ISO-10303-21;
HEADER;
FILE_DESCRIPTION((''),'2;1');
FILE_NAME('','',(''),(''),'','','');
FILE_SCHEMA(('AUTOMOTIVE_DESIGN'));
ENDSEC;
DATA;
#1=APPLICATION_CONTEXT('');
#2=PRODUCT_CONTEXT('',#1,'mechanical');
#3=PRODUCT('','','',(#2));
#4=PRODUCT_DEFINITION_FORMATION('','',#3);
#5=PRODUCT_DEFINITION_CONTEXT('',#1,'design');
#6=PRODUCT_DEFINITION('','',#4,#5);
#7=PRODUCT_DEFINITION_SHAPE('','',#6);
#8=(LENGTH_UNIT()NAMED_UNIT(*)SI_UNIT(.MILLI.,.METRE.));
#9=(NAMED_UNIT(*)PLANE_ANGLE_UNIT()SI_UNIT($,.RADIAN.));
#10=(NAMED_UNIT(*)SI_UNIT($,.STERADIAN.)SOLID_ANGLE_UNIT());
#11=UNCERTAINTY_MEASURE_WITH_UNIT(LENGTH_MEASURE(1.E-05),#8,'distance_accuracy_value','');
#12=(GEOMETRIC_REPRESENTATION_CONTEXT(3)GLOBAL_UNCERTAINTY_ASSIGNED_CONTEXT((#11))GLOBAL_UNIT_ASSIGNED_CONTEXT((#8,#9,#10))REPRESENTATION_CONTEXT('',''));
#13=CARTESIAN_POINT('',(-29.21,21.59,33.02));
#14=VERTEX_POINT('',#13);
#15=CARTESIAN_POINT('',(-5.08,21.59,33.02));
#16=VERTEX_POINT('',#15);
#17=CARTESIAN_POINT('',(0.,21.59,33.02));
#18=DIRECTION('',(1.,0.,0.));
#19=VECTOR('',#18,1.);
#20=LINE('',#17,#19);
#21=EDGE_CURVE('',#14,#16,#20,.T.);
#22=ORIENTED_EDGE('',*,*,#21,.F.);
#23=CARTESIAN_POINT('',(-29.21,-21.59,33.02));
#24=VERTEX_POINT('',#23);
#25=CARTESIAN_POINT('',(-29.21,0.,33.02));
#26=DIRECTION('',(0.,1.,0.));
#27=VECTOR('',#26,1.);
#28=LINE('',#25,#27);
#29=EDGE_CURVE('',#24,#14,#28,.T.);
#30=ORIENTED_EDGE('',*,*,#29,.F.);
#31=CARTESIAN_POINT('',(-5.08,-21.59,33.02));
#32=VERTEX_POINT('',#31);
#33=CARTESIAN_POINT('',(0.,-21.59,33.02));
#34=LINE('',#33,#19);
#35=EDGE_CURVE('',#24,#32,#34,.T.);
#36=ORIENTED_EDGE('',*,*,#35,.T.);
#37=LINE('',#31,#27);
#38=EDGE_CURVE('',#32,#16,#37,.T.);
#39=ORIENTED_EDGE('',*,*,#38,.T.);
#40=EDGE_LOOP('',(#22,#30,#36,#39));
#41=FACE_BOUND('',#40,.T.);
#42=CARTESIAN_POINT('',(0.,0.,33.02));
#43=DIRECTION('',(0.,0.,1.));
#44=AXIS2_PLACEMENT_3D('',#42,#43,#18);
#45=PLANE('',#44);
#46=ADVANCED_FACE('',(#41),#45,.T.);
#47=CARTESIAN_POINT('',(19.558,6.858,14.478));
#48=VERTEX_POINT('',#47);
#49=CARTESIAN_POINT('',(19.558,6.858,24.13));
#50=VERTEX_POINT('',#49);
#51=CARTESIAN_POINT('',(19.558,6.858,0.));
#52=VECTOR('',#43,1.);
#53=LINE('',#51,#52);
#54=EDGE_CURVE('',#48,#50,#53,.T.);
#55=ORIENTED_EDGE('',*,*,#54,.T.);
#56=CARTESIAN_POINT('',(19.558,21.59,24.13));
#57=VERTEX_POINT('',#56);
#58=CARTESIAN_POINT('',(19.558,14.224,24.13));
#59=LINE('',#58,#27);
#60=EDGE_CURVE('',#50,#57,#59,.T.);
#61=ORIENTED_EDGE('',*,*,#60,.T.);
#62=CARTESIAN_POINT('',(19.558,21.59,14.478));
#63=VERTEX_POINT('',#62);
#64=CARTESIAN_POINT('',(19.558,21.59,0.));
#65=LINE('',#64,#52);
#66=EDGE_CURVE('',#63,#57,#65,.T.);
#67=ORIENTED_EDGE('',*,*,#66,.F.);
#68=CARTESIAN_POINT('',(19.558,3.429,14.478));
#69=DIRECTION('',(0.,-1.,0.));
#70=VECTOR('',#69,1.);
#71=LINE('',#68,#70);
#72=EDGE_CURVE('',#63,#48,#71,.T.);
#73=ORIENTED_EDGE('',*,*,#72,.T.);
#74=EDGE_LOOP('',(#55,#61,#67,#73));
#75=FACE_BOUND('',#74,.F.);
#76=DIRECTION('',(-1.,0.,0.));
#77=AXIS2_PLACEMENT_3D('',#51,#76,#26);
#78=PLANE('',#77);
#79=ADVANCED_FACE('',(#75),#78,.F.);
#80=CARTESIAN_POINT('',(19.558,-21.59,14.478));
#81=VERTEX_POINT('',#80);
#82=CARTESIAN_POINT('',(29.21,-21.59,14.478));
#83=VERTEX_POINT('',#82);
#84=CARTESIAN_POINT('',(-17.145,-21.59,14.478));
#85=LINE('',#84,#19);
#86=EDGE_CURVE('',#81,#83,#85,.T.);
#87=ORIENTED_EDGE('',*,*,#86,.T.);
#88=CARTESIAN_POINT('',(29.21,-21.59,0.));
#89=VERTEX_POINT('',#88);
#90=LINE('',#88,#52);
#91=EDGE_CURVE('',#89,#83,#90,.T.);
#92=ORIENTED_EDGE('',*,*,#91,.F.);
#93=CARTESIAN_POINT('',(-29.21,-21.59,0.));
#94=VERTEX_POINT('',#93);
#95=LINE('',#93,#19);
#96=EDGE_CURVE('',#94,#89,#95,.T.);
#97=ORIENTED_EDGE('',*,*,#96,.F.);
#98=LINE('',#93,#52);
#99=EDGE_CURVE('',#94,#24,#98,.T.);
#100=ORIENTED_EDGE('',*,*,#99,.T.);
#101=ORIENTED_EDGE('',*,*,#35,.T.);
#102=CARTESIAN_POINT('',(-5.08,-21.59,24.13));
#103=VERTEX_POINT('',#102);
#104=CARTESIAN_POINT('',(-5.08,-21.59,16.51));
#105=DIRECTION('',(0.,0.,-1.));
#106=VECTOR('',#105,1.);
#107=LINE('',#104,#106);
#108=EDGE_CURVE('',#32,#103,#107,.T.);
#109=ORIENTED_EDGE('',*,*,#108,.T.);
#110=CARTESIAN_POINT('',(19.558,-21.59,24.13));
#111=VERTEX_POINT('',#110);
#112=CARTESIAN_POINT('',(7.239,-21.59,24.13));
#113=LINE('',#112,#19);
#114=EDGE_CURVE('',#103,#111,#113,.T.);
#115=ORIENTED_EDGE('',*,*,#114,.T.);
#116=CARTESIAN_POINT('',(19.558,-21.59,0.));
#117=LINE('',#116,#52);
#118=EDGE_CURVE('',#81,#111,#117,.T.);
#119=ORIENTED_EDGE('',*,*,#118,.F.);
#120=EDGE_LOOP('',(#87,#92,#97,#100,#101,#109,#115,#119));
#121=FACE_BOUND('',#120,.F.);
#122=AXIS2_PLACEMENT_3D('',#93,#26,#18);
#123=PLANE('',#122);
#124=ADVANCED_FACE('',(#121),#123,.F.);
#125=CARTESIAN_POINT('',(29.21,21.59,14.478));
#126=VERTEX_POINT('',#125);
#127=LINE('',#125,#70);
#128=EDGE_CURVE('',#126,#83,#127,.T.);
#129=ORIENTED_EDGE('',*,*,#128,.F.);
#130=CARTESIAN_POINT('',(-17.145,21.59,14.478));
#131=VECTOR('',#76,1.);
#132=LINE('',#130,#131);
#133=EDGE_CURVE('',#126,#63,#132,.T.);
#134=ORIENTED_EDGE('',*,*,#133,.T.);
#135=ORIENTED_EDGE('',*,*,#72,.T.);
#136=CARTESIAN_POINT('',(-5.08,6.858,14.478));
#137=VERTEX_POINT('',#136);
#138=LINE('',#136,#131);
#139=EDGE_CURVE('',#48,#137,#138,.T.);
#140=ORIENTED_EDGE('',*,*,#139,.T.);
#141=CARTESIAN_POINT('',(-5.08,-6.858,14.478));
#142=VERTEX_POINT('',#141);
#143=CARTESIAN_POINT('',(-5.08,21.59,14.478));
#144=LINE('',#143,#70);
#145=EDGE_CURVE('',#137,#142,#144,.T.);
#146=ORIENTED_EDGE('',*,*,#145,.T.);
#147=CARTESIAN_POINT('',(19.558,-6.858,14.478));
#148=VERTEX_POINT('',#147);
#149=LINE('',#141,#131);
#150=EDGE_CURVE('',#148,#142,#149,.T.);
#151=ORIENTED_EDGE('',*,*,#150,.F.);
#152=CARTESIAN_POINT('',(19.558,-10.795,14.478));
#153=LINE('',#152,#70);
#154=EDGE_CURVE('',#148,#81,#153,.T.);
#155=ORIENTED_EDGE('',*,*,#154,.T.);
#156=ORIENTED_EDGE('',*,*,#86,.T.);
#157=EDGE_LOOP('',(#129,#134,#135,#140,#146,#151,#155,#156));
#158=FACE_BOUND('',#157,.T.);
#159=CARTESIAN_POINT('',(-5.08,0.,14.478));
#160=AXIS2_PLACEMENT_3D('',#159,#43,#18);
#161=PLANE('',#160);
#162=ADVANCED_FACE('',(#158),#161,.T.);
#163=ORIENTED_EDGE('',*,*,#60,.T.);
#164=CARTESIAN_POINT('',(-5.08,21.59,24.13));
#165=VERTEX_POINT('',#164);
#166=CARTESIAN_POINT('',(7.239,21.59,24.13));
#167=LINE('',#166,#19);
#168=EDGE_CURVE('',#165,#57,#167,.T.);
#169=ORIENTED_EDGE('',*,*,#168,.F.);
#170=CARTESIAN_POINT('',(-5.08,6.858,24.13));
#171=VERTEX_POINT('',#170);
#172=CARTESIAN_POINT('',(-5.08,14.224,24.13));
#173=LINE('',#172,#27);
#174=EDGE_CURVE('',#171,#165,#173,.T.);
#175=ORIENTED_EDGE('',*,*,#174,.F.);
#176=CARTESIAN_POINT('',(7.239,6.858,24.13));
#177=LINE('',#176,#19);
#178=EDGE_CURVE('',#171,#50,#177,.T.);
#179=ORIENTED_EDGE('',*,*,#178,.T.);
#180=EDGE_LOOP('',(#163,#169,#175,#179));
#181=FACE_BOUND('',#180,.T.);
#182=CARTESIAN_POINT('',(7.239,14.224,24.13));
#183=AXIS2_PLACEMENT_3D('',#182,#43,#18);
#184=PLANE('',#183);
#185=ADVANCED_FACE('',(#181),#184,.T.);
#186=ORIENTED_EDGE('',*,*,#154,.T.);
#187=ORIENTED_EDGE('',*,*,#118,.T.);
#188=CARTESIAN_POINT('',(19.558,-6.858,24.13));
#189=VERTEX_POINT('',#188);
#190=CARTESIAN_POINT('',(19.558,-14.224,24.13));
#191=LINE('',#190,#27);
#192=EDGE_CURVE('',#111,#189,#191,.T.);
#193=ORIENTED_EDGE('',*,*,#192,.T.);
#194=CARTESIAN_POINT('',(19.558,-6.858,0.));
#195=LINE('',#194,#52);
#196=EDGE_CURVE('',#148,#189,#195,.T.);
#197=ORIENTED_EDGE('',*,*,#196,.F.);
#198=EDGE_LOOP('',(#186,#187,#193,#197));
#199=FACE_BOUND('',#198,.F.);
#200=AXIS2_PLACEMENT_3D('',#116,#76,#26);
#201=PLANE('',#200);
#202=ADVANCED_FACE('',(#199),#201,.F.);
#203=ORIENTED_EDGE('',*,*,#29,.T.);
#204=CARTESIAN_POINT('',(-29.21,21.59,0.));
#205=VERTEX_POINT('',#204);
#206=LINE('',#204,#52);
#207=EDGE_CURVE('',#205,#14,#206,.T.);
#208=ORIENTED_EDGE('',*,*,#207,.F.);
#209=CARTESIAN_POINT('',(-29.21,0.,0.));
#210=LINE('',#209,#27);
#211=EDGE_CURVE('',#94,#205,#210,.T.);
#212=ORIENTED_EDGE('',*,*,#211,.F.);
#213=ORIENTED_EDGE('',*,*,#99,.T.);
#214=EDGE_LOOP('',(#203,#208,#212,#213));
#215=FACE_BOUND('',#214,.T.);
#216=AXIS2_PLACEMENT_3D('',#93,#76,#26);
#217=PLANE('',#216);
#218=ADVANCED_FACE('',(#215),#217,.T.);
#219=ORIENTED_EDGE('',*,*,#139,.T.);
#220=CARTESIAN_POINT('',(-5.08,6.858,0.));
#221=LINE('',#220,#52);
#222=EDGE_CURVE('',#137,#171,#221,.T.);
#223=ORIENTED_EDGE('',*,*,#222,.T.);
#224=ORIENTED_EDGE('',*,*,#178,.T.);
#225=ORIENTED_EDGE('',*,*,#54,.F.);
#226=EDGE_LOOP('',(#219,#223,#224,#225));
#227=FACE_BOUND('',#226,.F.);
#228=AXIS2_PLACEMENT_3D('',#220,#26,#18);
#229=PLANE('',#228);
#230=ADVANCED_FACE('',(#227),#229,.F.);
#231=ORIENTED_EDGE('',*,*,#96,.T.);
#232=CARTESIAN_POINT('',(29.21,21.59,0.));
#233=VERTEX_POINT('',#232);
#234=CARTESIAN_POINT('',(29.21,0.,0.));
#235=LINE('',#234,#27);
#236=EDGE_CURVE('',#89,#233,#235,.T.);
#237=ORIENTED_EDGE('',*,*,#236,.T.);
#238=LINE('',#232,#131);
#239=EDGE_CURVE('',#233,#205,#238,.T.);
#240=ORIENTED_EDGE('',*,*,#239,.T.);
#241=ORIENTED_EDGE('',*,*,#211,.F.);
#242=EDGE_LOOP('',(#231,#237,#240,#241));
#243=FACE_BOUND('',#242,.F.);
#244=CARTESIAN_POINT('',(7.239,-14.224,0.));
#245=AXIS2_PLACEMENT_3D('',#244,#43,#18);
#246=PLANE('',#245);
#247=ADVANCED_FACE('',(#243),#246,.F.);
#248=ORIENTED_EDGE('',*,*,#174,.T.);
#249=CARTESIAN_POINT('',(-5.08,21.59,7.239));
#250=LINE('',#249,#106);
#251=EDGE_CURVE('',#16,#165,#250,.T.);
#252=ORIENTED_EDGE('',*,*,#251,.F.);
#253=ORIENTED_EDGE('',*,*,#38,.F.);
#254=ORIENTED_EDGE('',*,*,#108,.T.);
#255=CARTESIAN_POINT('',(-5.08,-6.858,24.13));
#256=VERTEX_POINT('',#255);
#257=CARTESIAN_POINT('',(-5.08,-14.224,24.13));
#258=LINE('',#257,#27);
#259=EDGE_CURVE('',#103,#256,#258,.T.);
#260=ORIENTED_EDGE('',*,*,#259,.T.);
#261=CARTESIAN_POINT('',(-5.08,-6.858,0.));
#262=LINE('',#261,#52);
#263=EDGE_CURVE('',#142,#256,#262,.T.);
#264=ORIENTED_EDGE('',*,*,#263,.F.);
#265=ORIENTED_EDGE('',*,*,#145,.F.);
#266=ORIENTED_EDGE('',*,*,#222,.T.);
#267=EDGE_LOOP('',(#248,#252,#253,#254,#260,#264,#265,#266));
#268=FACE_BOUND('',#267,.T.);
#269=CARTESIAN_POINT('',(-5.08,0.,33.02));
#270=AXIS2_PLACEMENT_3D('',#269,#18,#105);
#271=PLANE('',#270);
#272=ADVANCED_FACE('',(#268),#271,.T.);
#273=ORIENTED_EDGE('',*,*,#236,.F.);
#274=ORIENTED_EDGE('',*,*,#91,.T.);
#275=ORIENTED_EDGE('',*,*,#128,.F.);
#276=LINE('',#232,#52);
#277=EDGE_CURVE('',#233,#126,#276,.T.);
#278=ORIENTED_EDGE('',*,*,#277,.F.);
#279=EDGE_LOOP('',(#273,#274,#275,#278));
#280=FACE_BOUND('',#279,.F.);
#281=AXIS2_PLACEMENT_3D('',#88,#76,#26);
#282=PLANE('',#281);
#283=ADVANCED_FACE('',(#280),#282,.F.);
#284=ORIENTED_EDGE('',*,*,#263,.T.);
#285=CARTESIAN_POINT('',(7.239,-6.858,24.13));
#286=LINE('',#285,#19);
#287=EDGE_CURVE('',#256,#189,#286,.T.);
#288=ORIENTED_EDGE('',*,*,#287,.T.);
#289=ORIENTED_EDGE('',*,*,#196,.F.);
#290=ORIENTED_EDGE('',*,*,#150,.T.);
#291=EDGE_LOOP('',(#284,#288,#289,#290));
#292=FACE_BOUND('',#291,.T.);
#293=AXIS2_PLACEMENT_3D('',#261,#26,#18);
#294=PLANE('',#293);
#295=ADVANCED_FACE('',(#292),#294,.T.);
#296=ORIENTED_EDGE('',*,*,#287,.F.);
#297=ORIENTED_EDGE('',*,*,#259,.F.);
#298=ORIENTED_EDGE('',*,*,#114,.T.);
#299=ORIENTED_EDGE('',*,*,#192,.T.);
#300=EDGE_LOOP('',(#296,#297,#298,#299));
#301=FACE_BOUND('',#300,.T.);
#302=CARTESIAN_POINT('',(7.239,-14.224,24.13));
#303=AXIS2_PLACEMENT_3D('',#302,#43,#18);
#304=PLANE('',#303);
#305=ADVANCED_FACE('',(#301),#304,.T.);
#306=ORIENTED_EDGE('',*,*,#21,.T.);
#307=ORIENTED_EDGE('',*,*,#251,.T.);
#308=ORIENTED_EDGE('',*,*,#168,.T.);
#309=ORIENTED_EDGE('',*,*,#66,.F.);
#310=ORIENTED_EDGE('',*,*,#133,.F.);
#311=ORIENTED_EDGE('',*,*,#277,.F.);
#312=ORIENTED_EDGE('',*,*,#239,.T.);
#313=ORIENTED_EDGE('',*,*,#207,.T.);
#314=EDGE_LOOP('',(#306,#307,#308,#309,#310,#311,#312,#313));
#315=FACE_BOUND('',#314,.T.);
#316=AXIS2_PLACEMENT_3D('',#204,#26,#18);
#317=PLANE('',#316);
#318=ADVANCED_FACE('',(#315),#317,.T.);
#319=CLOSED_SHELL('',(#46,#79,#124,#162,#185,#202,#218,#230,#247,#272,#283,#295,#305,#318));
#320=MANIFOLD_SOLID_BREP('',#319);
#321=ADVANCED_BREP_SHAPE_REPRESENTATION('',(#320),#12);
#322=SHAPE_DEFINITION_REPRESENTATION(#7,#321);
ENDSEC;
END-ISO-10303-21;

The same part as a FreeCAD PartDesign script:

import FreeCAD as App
import Part
import Sketcher

V = App.Vector
Q = App.Units.Quantity

doc = App.newDocument("Part")
params = doc.addObject("Spreadsheet::Sheet", "Params")
for row, (alias, value) in enumerate([
    ("sketch1_width", "2.3 in"),
    ("sketch1_height", "1.7 in"),
    ("pad1_length", "1.3 in"),
    ("sketch2_height", "0.73 in"),
    ("sketch3_width", "1.35 in"),
    ("sketch3_height", "0.73 in"),
    ("sketch4_width", "0.97 in"),
    ("sketch4_height", "0.58 in"),
    ("pad2_length", "0.95 in"),
    ("sketch5_width", "0.97 in"),
    ("sketch5_height", "0.58 in"),
    ("pad3_length", "0.95 in"),
], start=1):
    params.set(f"A{row}", alias)
    params.set(f"B{row}", "=" + value)
    params.setAlias(f"B{row}", alias)

body = doc.addObject("PartDesign::Body", "Body")

# Sketch on XY plane
sketch1 = body.newObject("Sketcher::SketchObject", "Sketch")
sketch1.AttachmentSupport = (doc.getObject("XY_Plane"), [""])
sketch1.MapMode = "FlatFace"
sketch1.addGeometry([
    Part.LineSegment(V(-29.21, 21.59, 0), V(-29.21, -21.59, 0)),
    Part.LineSegment(V(-29.21, -21.59, 0), V(29.21, -21.59, 0)),
    Part.LineSegment(V(29.21, -21.59, 0), V(29.21, 21.59, 0)),
    Part.LineSegment(V(29.21, 21.59, 0), V(-29.21, 21.59, 0)),
], False)
sketch1.addConstraint([
    Sketcher.Constraint("Coincident", 0, 2, 1, 1),
    Sketcher.Constraint("Coincident", 1, 2, 2, 1),
    Sketcher.Constraint("Coincident", 2, 2, 3, 1),
    Sketcher.Constraint("Coincident", 3, 2, 0, 1),
    Sketcher.Constraint("Vertical", 0),
    Sketcher.Constraint("Horizontal", 1),
    Sketcher.Constraint("Vertical", 2),
    Sketcher.Constraint("Horizontal", 3),
    Sketcher.Constraint("Symmetric", 0, 2, 2, 2, -1, 1),
    Sketcher.Constraint("DistanceX", 1, 1, 1, 2, Q("2.3 in")),
    Sketcher.Constraint("DistanceY", 0, 2, 0, 1, Q("1.7 in")),
])
sketch1.setExpression("Constraints[9]", "Params.sketch1_width")
sketch1.setExpression("Constraints[10]", "Params.sketch1_height")
pad1 = body.newObject("PartDesign::Pad", "Pad")
pad1.Profile = sketch1
pad1.setExpression("Length", "Params.pad1_length")

# Sketch on XZ plane
sketch2 = body.newObject("Sketcher::SketchObject", "Sketch001")
sketch2.AttachmentSupport = (doc.getObject("XZ_Plane"), [""])
sketch2.MapMode = "FlatFace"
sketch2.addGeometry([
    Part.LineSegment(V(-5.08, 33.02, 0), V(-5.08, 14.478, 0)),
    Part.LineSegment(V(-5.08, 14.478, 0), V(39.869538, 14.478, 0)),
    Part.LineSegment(V(39.869538, 14.478, 0), V(39.869538, 33.02, 0)),
    Part.LineSegment(V(39.869538, 33.02, 0), V(-5.08, 33.02, 0)),
], False)
sketch2.addConstraint([
    Sketcher.Constraint("Coincident", 0, 2, 1, 1),
    Sketcher.Constraint("Coincident", 1, 2, 2, 1),
    Sketcher.Constraint("Coincident", 2, 2, 3, 1),
    Sketcher.Constraint("Coincident", 3, 2, 0, 1),
    Sketcher.Constraint("Vertical", 0),
    Sketcher.Constraint("Horizontal", 1),
    Sketcher.Constraint("Vertical", 2),
    Sketcher.Constraint("Horizontal", 3),
    Sketcher.Constraint("DistanceY", 0, 2, 0, 1, Q("0.73 in")),
    Sketcher.Constraint("DistanceX", 0, 2, -1, 1, Q("0.2 in")),
    Sketcher.Constraint("DistanceY", -1, 1, 2, 2, Q("1.3 in")),
    Sketcher.Constraint("DistanceX", 1, 1, 1, 2, Q("44.949538 mm")),
])
sketch2.setExpression("Constraints[8]", "Params.sketch2_height")
pocket1 = body.newObject("PartDesign::Pocket", "Pocket")
pocket1.Profile = sketch2
pocket1.Type = "ThroughAll"

# Sketch on XZ plane
sketch3 = body.newObject("Sketcher::SketchObject", "Sketch002")
sketch3.AttachmentSupport = (doc.getObject("XZ_Plane"), [""])
sketch3.MapMode = "FlatFace"
sketch3.addGeometry([
    Part.LineSegment(V(-5.08, 14.478, 0), V(-5.08, 33.02, 0)),
    Part.LineSegment(V(-5.08, 33.02, 0), V(29.21, 33.02, 0)),
    Part.LineSegment(V(29.21, 33.02, 0), V(29.21, 14.478, 0)),
    Part.LineSegment(V(29.21, 14.478, 0), V(-5.08, 14.478, 0)),
], False)
sketch3.addConstraint([
    Sketcher.Constraint("Coincident", 0, 2, 1, 1),
    Sketcher.Constraint("Coincident", 1, 2, 2, 1),
    Sketcher.Constraint("Coincident", 2, 2, 3, 1),
    Sketcher.Constraint("Coincident", 3, 2, 0, 1),
    Sketcher.Constraint("Vertical", 0),
    Sketcher.Constraint("Horizontal", 1),
    Sketcher.Constraint("Vertical", 2),
    Sketcher.Constraint("Horizontal", 3),
    Sketcher.Constraint("DistanceX", 1, 1, 1, 2, Q("1.35 in")),
    Sketcher.Constraint("DistanceY", 0, 1, 0, 2, Q("0.73 in")),
    Sketcher.Constraint("DistanceX", 0, 2, -1, 1, Q("0.2 in")),
    Sketcher.Constraint("DistanceY", -1, 1, 0, 2, Q("1.3 in")),
])
sketch3.setExpression("Constraints[8]", "Params.sketch3_width")
sketch3.setExpression("Constraints[9]", "Params.sketch3_height")
pocket2 = body.newObject("PartDesign::Pocket", "Pocket001")
pocket2.Profile = sketch3
pocket2.Type = "ThroughAll"
pocket2.Reversed = True

# Sketch on XY plane
sketch4 = body.newObject("Sketcher::SketchObject", "Sketch003")
sketch4.AttachmentSupport = (doc.getObject("XY_Plane"), [""])
sketch4.MapMode = "FlatFace"
sketch4.addGeometry([
    Part.LineSegment(V(-5.08, 21.59, 0), V(-5.08, 6.858, 0)),
    Part.LineSegment(V(-5.08, 6.858, 0), V(19.558, 6.858, 0)),
    Part.LineSegment(V(19.558, 6.858, 0), V(19.558, 21.59, 0)),
    Part.LineSegment(V(19.558, 21.59, 0), V(-5.08, 21.59, 0)),
], False)
sketch4.addConstraint([
    Sketcher.Constraint("Coincident", 0, 2, 1, 1),
    Sketcher.Constraint("Coincident", 1, 2, 2, 1),
    Sketcher.Constraint("Coincident", 2, 2, 3, 1),
    Sketcher.Constraint("Coincident", 3, 2, 0, 1),
    Sketcher.Constraint("Vertical", 0),
    Sketcher.Constraint("Horizontal", 1),
    Sketcher.Constraint("Vertical", 2),
    Sketcher.Constraint("Horizontal", 3),
    Sketcher.Constraint("DistanceX", 1, 1, 1, 2, Q("0.97 in")),
    Sketcher.Constraint("DistanceY", 0, 2, 0, 1, Q("0.58 in")),
    Sketcher.Constraint("DistanceX", 0, 2, -1, 1, Q("0.2 in")),
    Sketcher.Constraint("DistanceY", -1, 1, 0, 2, Q("0.27 in")),
])
sketch4.setExpression("Constraints[8]", "Params.sketch4_width")
sketch4.setExpression("Constraints[9]", "Params.sketch4_height")
pad2 = body.newObject("PartDesign::Pad", "Pad001")
pad2.Profile = sketch4
pad2.setExpression("Length", "Params.pad2_length")

# Sketch on XY plane
sketch5 = body.newObject("Sketcher::SketchObject", "Sketch004")
sketch5.AttachmentSupport = (doc.getObject("XY_Plane"), [""])
sketch5.MapMode = "FlatFace"
sketch5.addGeometry([
    Part.LineSegment(V(-5.08, -6.858, 0), V(-5.08, -21.59, 0)),
    Part.LineSegment(V(-5.08, -21.59, 0), V(19.558, -21.59, 0)),
    Part.LineSegment(V(19.558, -21.59, 0), V(19.558, -6.858, 0)),
    Part.LineSegment(V(19.558, -6.858, 0), V(-5.08, -6.858, 0)),
], False)
sketch5.addConstraint([
    Sketcher.Constraint("Coincident", 0, 2, 1, 1),
    Sketcher.Constraint("Coincident", 1, 2, 2, 1),
    Sketcher.Constraint("Coincident", 2, 2, 3, 1),
    Sketcher.Constraint("Coincident", 3, 2, 0, 1),
    Sketcher.Constraint("Vertical", 0),
    Sketcher.Constraint("Horizontal", 1),
    Sketcher.Constraint("Vertical", 2),
    Sketcher.Constraint("Horizontal", 3),
    Sketcher.Constraint("DistanceX", 1, 1, 1, 2, Q("0.97 in")),
    Sketcher.Constraint("DistanceY", 0, 2, 0, 1, Q("0.58 in")),
    Sketcher.Constraint("DistanceX", 0, 2, -1, 1, Q("0.2 in")),
    Sketcher.Constraint("DistanceY", 0, 2, -1, 1, Q("0.85 in")),
])
sketch5.setExpression("Constraints[8]", "Params.sketch5_width")
sketch5.setExpression("Constraints[9]", "Params.sketch5_height")
pad3 = body.newObject("PartDesign::Pad", "Pad002")
pad3.Profile = sketch5
pad3.setExpression("Length", "Params.pad3_length")

doc.recompute()
